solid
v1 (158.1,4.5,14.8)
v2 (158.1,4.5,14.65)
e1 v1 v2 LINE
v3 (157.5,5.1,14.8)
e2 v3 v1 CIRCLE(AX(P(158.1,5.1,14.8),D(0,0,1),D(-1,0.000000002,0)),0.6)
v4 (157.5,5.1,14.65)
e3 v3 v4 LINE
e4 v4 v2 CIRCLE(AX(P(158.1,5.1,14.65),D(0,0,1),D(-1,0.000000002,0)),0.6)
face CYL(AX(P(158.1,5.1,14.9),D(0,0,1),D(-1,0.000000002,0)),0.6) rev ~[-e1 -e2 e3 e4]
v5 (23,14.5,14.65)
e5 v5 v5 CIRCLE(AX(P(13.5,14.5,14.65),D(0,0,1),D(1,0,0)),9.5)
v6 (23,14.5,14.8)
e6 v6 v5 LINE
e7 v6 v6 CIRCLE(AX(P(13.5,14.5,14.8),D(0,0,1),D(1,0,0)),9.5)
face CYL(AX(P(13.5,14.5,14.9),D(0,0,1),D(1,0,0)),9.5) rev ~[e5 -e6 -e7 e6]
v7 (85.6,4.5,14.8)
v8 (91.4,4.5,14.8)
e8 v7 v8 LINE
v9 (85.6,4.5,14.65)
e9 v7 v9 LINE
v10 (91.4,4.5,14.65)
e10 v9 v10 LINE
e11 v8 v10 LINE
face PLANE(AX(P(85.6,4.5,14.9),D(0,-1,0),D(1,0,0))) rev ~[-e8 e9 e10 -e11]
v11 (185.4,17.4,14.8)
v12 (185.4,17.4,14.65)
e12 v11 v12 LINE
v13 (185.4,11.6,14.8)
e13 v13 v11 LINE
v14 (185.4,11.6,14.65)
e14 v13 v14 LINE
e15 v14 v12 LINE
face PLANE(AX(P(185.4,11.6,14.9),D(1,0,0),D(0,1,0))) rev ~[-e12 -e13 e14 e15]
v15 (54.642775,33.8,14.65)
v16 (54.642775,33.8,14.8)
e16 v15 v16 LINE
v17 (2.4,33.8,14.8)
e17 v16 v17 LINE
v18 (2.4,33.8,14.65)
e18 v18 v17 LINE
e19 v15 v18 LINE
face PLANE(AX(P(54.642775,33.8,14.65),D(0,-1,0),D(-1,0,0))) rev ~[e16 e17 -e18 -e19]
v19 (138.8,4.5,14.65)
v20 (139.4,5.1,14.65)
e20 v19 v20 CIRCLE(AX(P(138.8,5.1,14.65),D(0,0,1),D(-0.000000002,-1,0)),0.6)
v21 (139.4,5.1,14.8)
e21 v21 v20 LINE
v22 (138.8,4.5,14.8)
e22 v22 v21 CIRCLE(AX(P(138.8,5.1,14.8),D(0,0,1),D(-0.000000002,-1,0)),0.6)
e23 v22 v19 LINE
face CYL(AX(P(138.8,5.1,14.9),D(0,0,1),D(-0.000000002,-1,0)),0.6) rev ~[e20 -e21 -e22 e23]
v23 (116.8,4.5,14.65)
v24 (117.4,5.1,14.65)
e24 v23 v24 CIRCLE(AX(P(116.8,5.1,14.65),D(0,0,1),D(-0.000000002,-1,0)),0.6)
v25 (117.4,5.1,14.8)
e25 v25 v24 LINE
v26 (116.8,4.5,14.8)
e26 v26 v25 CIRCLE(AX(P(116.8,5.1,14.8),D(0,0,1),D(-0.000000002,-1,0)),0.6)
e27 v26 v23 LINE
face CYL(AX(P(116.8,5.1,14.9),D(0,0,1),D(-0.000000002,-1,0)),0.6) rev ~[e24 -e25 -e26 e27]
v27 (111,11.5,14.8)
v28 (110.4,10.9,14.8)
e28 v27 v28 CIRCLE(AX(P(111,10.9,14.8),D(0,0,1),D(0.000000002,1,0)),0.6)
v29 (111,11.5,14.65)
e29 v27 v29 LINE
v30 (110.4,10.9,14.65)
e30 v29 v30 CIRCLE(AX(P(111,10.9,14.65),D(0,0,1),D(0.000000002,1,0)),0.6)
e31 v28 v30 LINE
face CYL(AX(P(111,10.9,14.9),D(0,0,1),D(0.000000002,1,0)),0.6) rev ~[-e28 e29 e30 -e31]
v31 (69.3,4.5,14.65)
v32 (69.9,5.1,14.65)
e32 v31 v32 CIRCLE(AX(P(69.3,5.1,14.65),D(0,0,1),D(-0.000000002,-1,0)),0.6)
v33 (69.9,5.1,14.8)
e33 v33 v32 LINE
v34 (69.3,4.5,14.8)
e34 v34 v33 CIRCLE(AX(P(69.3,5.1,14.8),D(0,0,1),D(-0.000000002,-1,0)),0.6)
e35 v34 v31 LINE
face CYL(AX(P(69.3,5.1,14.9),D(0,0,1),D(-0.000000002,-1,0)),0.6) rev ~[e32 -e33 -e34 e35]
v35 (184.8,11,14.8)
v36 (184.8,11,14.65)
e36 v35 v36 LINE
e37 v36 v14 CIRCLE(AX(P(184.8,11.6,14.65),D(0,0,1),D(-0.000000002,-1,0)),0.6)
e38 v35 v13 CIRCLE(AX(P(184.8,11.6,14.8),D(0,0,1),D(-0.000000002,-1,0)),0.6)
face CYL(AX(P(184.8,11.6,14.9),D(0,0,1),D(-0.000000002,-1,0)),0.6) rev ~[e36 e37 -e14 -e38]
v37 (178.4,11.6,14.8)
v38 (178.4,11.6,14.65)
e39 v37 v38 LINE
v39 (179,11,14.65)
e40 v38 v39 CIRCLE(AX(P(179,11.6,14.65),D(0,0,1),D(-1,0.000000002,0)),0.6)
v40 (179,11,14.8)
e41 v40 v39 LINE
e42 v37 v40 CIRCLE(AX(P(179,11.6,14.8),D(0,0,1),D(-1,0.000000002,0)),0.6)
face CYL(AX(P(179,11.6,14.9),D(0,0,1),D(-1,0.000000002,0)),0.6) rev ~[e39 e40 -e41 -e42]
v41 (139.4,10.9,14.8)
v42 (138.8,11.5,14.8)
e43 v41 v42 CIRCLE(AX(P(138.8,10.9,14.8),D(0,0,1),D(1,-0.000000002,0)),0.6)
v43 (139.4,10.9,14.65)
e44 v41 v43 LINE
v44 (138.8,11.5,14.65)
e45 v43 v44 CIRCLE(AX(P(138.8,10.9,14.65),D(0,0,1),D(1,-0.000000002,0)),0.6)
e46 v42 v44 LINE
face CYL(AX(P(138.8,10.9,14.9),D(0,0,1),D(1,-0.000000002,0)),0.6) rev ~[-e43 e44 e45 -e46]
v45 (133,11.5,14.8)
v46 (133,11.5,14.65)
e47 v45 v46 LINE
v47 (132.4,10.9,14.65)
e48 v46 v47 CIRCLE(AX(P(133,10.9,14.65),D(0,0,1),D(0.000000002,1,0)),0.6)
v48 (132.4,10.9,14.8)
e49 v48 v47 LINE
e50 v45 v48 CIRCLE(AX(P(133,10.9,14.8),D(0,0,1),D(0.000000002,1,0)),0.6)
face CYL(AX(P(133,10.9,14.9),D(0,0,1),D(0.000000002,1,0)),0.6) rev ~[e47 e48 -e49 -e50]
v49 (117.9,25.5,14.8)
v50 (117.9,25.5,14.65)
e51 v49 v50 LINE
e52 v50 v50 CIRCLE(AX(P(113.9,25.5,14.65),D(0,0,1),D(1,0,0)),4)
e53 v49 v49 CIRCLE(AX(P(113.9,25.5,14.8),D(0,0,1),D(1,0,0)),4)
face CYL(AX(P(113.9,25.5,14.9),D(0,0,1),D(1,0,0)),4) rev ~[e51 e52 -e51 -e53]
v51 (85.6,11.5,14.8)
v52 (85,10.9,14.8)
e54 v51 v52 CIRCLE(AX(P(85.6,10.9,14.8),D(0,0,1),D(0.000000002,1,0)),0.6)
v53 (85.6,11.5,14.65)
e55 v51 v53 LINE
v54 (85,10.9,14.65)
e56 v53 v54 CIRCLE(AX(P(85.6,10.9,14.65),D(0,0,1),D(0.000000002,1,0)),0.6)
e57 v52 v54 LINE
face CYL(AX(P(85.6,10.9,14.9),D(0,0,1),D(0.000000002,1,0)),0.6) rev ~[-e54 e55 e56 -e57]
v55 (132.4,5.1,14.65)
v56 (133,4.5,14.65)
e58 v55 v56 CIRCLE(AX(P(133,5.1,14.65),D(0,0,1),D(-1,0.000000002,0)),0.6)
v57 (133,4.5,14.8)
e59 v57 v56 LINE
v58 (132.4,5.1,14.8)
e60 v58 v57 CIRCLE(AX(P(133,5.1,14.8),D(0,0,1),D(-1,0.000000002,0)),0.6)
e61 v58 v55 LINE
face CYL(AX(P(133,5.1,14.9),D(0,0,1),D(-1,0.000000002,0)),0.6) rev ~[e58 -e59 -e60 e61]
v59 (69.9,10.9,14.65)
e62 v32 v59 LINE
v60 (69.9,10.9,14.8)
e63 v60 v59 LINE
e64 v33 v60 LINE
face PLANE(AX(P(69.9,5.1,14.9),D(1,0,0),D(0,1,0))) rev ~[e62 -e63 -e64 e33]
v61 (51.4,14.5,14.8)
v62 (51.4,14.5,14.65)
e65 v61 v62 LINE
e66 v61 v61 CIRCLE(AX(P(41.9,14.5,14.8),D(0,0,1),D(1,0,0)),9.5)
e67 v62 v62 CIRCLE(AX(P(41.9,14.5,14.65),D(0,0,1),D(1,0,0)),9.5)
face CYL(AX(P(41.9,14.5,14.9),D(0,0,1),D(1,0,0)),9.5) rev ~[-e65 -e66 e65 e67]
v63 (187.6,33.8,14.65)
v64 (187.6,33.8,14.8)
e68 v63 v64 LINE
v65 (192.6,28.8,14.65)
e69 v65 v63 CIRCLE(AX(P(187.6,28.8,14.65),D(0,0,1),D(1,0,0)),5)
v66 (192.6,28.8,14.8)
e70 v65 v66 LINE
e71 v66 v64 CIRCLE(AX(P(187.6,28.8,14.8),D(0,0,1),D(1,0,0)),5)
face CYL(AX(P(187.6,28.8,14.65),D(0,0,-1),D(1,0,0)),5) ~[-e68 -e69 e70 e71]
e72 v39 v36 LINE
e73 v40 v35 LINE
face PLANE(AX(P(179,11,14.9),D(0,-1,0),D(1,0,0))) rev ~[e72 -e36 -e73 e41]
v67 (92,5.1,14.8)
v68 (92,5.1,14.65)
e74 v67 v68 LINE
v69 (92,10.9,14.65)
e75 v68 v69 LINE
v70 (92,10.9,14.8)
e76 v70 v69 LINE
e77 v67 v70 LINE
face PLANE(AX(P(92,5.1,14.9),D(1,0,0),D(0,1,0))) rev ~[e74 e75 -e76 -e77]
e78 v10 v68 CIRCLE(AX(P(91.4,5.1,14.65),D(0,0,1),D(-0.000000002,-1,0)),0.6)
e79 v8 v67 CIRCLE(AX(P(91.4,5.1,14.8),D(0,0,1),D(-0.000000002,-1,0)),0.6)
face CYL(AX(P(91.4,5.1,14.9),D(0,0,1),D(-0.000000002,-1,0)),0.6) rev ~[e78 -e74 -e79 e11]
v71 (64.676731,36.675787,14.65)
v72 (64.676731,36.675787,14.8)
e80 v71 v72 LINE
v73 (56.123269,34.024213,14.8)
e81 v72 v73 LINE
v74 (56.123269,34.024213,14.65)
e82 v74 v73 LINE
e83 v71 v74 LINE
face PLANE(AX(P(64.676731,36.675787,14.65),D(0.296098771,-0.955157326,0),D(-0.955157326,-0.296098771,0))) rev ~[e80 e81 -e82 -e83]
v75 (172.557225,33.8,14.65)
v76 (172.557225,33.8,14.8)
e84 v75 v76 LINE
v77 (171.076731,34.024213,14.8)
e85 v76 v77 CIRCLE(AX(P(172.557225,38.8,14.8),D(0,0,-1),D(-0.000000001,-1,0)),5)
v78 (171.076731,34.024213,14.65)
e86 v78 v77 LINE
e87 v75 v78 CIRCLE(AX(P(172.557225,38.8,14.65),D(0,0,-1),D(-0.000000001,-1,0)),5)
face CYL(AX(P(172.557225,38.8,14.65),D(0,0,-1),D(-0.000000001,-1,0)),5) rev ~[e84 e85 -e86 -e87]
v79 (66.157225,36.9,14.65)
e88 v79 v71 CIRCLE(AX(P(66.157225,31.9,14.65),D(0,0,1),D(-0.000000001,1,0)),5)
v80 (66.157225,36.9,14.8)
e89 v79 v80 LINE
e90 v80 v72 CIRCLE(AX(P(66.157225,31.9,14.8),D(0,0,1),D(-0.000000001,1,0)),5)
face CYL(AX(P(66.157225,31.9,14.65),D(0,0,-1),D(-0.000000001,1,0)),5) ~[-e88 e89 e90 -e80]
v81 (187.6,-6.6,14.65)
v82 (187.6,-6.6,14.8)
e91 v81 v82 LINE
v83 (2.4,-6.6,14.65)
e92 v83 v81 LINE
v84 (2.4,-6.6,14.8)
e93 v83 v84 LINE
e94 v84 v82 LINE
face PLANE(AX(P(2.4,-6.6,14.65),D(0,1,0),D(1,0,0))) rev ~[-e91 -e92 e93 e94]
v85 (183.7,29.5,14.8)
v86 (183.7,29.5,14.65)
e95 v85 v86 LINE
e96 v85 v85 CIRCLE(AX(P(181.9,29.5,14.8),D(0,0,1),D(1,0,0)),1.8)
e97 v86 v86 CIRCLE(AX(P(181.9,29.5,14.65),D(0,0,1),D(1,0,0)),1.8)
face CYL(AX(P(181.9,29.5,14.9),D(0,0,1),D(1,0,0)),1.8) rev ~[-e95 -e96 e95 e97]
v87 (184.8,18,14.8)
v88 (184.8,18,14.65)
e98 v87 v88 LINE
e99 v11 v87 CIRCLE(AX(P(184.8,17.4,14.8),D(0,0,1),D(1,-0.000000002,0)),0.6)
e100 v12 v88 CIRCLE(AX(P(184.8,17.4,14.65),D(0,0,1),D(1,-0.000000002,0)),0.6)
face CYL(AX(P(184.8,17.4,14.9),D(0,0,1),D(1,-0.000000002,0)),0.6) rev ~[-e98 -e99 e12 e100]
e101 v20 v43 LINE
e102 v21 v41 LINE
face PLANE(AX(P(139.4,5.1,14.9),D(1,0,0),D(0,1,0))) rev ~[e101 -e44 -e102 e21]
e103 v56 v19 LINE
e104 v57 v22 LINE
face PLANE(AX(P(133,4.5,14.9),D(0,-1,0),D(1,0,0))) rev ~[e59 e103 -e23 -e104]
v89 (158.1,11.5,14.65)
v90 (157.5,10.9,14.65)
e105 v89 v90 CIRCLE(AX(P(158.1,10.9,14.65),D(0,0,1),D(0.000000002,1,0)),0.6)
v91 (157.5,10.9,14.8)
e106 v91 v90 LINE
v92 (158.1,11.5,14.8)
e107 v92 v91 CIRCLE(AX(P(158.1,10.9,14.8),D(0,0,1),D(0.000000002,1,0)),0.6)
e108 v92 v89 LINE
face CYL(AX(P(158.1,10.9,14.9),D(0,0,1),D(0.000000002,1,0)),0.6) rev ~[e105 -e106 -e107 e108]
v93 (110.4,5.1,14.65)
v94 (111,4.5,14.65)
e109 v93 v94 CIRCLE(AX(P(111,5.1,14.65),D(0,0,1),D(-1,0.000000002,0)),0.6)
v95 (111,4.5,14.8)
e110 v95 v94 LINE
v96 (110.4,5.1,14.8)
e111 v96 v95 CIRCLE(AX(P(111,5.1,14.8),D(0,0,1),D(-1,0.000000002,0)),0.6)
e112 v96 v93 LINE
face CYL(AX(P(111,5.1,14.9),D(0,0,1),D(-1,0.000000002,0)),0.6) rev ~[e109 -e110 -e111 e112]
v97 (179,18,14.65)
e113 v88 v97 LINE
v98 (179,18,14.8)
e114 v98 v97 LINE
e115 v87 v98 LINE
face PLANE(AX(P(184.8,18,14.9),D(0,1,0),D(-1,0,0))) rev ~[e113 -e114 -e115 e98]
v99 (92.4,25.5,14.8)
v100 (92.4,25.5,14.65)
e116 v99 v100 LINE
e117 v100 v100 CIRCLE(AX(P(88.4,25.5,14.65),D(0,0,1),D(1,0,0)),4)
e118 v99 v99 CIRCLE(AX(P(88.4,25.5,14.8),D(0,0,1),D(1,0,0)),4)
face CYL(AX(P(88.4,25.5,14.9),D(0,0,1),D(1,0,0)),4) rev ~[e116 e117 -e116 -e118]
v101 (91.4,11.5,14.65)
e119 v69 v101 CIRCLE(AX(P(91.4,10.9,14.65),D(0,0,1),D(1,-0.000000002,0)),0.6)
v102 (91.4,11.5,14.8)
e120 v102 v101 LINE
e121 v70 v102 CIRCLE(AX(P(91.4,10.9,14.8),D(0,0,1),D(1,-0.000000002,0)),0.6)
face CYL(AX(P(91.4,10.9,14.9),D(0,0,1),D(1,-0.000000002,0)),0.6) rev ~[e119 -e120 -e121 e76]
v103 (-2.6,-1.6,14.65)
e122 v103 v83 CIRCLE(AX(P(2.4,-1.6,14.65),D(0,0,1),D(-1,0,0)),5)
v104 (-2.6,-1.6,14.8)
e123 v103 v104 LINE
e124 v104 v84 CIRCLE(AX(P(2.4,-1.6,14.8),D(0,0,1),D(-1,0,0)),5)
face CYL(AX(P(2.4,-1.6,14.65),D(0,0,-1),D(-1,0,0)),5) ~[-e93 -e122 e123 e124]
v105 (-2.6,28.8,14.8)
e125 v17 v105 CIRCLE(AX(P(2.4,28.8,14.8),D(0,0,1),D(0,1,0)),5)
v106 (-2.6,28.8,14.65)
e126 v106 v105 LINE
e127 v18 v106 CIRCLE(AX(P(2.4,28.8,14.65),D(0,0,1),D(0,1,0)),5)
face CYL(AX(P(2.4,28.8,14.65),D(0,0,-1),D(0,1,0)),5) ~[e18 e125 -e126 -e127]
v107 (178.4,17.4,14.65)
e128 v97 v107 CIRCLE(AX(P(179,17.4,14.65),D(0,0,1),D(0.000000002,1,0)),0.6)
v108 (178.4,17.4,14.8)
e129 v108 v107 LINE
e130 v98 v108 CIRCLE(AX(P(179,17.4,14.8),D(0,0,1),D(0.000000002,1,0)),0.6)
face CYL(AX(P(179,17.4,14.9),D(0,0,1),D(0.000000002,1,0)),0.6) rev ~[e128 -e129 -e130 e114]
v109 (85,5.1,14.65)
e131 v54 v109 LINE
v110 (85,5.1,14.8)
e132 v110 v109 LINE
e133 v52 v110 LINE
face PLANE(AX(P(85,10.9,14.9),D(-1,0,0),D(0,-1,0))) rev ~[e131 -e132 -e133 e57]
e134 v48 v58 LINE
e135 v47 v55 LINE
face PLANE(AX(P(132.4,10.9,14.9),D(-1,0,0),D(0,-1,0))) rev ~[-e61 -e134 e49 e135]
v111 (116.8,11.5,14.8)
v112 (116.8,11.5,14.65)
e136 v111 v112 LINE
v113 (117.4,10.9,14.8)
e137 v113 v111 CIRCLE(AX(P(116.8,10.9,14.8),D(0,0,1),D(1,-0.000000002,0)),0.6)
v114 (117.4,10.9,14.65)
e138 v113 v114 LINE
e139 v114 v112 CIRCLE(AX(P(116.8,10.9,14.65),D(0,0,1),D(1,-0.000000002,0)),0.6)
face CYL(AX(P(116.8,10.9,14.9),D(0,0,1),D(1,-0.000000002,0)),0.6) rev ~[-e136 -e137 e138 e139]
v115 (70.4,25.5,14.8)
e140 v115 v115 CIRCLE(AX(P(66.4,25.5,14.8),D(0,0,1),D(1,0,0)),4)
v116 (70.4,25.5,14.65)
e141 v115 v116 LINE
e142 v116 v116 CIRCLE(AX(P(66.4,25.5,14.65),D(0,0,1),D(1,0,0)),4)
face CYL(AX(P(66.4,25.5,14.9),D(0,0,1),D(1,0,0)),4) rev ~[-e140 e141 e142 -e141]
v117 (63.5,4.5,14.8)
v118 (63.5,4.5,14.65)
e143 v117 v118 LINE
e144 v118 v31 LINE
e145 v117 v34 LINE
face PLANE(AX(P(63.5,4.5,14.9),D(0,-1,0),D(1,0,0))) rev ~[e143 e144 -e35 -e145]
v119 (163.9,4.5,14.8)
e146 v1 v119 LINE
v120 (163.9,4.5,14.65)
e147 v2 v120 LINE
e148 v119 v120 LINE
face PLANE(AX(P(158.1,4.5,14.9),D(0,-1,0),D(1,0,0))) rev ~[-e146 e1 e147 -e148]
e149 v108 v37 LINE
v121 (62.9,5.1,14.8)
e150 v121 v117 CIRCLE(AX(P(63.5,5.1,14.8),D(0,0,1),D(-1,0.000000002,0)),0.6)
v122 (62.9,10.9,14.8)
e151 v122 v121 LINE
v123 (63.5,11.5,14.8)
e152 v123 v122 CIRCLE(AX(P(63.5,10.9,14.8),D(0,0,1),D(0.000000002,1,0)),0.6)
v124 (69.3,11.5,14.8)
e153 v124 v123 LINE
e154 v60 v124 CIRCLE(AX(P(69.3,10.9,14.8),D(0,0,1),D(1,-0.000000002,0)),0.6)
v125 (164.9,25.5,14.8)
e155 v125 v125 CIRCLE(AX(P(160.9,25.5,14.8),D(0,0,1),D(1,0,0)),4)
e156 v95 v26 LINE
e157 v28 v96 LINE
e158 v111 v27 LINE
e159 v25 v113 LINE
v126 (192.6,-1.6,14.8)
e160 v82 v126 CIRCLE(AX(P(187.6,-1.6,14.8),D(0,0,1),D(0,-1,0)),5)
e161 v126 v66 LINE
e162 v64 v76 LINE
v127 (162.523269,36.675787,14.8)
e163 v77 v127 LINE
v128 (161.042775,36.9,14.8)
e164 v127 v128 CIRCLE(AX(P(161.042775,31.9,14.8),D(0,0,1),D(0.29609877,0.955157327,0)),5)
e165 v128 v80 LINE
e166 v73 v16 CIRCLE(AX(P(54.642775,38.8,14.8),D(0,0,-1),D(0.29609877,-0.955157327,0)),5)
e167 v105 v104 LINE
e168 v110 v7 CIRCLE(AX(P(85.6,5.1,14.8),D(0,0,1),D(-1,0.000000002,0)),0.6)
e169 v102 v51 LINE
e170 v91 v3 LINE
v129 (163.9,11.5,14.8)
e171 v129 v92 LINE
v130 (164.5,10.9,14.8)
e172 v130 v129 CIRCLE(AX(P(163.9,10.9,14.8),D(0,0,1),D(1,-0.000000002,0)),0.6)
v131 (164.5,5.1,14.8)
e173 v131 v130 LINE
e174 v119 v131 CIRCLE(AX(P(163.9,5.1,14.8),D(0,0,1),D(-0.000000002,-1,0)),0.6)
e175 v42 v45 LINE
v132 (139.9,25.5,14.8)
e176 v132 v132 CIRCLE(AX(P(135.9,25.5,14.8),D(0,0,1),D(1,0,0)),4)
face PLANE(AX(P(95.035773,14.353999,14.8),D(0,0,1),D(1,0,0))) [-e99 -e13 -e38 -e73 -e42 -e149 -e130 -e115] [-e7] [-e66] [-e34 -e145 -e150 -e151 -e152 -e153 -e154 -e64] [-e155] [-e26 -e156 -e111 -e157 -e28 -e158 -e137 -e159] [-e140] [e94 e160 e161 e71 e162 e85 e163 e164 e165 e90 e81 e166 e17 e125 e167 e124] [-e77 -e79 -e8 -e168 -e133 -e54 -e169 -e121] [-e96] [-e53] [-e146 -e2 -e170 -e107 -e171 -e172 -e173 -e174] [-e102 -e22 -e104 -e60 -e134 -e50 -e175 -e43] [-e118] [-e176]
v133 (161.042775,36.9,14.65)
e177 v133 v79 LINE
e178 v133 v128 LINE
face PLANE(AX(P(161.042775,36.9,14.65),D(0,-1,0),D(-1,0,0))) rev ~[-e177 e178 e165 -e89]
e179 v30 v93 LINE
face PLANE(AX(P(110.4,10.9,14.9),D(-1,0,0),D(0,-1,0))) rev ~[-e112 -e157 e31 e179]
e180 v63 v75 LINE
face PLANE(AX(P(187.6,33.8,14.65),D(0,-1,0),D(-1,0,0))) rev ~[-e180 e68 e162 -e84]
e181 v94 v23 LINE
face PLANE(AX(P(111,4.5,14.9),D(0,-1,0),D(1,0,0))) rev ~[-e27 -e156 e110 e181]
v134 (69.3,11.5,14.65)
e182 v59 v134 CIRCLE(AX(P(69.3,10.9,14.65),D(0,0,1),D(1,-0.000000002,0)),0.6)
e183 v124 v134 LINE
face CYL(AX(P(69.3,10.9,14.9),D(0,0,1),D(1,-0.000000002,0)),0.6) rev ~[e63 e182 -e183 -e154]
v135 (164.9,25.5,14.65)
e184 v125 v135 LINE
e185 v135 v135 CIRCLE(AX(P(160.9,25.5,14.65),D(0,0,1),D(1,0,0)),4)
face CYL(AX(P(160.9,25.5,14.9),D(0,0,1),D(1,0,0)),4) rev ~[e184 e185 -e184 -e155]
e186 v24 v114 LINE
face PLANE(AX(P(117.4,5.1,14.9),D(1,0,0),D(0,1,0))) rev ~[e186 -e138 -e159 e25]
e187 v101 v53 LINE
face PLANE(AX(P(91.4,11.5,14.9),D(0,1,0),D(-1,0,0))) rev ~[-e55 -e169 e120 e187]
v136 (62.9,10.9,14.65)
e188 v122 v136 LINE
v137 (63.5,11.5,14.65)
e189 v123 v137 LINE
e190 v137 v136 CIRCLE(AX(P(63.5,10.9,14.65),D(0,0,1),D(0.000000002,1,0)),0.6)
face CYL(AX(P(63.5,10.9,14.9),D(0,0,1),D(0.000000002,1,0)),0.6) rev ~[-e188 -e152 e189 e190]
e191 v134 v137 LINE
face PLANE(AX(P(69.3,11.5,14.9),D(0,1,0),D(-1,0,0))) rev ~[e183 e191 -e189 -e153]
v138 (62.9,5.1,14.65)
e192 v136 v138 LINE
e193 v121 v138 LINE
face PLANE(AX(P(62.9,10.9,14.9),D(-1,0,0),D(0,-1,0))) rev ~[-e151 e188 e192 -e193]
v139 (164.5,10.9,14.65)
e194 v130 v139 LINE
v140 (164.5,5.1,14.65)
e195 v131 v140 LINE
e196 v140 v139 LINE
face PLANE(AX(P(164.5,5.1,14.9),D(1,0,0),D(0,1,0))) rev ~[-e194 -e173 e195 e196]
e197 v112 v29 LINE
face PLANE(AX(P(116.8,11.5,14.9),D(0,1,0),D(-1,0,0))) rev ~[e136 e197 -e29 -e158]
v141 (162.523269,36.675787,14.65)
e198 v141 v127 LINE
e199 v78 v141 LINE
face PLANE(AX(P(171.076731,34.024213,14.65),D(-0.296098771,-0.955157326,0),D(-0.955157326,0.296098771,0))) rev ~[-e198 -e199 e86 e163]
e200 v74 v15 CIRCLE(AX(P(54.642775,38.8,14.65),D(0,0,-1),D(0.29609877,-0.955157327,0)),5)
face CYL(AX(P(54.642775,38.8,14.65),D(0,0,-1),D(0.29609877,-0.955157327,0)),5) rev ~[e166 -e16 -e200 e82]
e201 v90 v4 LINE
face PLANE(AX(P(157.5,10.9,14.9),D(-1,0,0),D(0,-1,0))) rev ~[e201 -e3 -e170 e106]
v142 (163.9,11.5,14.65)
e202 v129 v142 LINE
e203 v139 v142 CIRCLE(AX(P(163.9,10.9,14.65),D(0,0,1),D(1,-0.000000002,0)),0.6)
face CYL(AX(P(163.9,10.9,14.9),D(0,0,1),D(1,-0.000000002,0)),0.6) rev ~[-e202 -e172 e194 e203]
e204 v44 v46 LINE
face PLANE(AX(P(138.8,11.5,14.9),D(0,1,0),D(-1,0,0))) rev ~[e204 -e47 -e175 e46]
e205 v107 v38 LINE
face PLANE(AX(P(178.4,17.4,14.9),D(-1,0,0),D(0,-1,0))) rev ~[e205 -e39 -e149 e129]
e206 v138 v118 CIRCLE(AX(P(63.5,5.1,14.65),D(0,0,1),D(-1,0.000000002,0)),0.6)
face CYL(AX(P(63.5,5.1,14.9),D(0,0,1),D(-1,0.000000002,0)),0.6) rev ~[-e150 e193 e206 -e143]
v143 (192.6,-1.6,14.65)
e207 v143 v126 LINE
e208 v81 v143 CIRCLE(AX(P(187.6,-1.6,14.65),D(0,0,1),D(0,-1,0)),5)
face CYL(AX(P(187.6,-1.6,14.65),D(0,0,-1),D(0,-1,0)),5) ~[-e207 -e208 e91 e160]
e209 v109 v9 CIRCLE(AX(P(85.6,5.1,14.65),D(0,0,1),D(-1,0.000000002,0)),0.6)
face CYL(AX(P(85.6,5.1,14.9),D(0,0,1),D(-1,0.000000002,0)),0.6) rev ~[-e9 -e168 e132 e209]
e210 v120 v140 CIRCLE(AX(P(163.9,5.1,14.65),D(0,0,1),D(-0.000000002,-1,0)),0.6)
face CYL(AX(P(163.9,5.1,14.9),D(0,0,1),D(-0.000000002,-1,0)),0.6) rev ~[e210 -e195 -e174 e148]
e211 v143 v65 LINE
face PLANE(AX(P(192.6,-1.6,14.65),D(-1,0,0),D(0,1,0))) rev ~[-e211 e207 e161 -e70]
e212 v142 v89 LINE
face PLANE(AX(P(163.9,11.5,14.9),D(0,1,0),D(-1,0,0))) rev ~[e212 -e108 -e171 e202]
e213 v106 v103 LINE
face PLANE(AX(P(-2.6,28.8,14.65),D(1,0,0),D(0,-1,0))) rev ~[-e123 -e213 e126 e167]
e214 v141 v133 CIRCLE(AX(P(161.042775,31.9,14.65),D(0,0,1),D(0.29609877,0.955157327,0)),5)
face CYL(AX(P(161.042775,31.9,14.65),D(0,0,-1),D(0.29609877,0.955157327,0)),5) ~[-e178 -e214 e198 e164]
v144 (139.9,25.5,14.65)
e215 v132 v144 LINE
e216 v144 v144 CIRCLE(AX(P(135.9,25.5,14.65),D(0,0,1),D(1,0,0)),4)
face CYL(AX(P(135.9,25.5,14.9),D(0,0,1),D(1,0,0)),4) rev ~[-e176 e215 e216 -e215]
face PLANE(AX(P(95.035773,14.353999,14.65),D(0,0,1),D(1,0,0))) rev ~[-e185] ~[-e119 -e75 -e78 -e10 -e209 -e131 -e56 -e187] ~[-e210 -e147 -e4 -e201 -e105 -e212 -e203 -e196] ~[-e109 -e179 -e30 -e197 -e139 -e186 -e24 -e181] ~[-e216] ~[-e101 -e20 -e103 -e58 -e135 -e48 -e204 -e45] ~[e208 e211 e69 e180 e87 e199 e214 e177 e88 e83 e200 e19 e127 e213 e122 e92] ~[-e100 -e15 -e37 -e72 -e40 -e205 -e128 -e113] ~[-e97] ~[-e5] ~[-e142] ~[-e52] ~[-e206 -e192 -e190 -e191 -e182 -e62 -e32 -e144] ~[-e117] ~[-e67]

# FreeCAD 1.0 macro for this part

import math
import FreeCAD as App
import Part
import Sketcher

V = App.Vector

doc = App.newDocument("Part")
body = doc.addObject("PartDesign::Body", "Body")

# Sketch on XY plane
sketch1 = body.newObject("Sketcher::SketchObject", "Sketch")
sketch1.AttachmentSupport = (doc.getObject("XY_Plane"), [""])
sketch1.MapMode = "FlatFace"
sketch1.AttachmentOffset = App.Placement(V(0, 0, 14.65), App.Rotation())
sketch1.addGeometry(Part.LineSegment(V(2.4, -6.6, 0), V(187.6, -6.6, 0)), False)
sketch1.addGeometry(Part.ArcOfCircle(Part.Circle(V(187.6, -1.6, 0), V(0, 0, 1), 5), math.radians(-90), math.radians(0)), False)
sketch1.addGeometry(Part.LineSegment(V(192.6, -1.6, 0), V(192.6, 28.8, 0)), False)
sketch1.addGeometry(Part.ArcOfCircle(Part.Circle(V(187.6, 28.8, 0), V(0, 0, 1), 5), math.radians(0), math.radians(90)), False)
sketch1.addGeometry(Part.LineSegment(V(187.6, 33.8, 0), V(172.557225, 33.8, 0)), False)
sketch1.addGeometry(Part.ArcOfCircle(Part.Circle(V(172.557225, 38.8, 0), V(0, 0, 1), 5), math.radians(-107.223436), math.radians(-90)), False)
sketch1.addGeometry(Part.LineSegment(V(171.076731, 34.024213, 0), V(162.523269, 36.675787, 0)), False)
sketch1.addGeometry(Part.ArcOfCircle(Part.Circle(V(161.042775, 31.9, 0), V(0, 0, 1), 5), math.radians(72.776564), math.radians(90)), False)
sketch1.addGeometry(Part.LineSegment(V(161.042775, 36.9, 0), V(66.157225, 36.9, 0)), False)
sketch1.addGeometry(Part.ArcOfCircle(Part.Circle(V(66.157225, 31.9, 0), V(0, 0, 1), 5), math.radians(90), math.radians(107.223436)), False)
sketch1.addGeometry(Part.LineSegment(V(64.676731, 36.675787, 0), V(56.123269, 34.024213, 0)), False)
sketch1.addGeometry(Part.ArcOfCircle(Part.Circle(V(54.642775, 38.8, 0), V(0, 0, 1), 5), math.radians(-90), math.radians(-72.776564)), False)
sketch1.addGeometry(Part.LineSegment(V(54.642775, 33.8, 0), V(2.4, 33.8, 0)), False)
sketch1.addGeometry(Part.ArcOfCircle(Part.Circle(V(2.4, 28.8, 0), V(0, 0, 1), 5), math.radians(90), math.radians(180)), False)
sketch1.addGeometry(Part.LineSegment(V(-2.6, 28.8, 0), V(-2.6, -1.6, 0)), False)
sketch1.addGeometry(Part.ArcOfCircle(Part.Circle(V(2.4, -1.6, 0), V(0, 0, 1), 5), math.radians(180), math.radians(270)), False)
sketch1.addConstraint(Sketcher.Constraint("Tangent", 0, 2, 1, 1))
sketch1.addConstraint(Sketcher.Constraint("Tangent", 1, 2, 2, 1))
sketch1.addConstraint(Sketcher.Constraint("Tangent", 2, 2, 3, 1))
sketch1.addConstraint(Sketcher.Constraint("Tangent", 3, 2, 4, 1))
sketch1.addConstraint(Sketcher.Constraint("Tangent", 4, 2, 5, 2))
sketch1.addConstraint(Sketcher.Constraint("Tangent", 5, 1, 6, 1))
sketch1.addConstraint(Sketcher.Constraint("Tangent", 6, 2, 7, 1))
sketch1.addConstraint(Sketcher.Constraint("Tangent", 7, 2, 8, 1))
sketch1.addConstraint(Sketcher.Constraint("Tangent", 8, 2, 9, 1))
sketch1.addConstraint(Sketcher.Constraint("Tangent", 9, 2, 10, 1))
sketch1.addConstraint(Sketcher.Constraint("Tangent", 10, 2, 11, 2))
sketch1.addConstraint(Sketcher.Constraint("Tangent", 11, 1, 12, 1))
sketch1.addConstraint(Sketcher.Constraint("Tangent", 12, 2, 13, 1))
sketch1.addConstraint(Sketcher.Constraint("Tangent", 13, 2, 14, 1))
sketch1.addConstraint(Sketcher.Constraint("Tangent", 14, 2, 15, 1))
sketch1.addConstraint(Sketcher.Constraint("Tangent", 15, 2, 0, 1))
sketch1.addConstraint(Sketcher.Constraint("Horizontal", 0))
sketch1.addConstraint(Sketcher.Constraint("Vertical", 2))
sketch1.addConstraint(Sketcher.Constraint("Horizontal", 4))
sketch1.addConstraint(Sketcher.Constraint("Horizontal", 8))
sketch1.addConstraint(Sketcher.Constraint("Horizontal", 12))
sketch1.addConstraint(Sketcher.Constraint("Vertical", 14))
sketch1.addConstraint(Sketcher.Constraint("Equal", 1, 3))
sketch1.addConstraint(Sketcher.Constraint("Equal", 3, 5))
sketch1.addConstraint(Sketcher.Constraint("Equal", 5, 7))
sketch1.addConstraint(Sketcher.Constraint("Equal", 7, 9))
sketch1.addConstraint(Sketcher.Constraint("Equal", 9, 11))
sketch1.addConstraint(Sketcher.Constraint("Equal", 11, 13))
sketch1.addConstraint(Sketcher.Constraint("Equal", 13, 15))
sketch1.addConstraint(Sketcher.Constraint("Horizontal", 5, 3, 11, 3))
sketch1.addConstraint(Sketcher.Constraint("Horizontal", 6, 2, 9, 2))
sketch1.addConstraint(Sketcher.Constraint("Radius", 1, 5.0))
sketch1.addConstraint(Sketcher.Constraint("DistanceX", 0, 1, 0, 2, 185.2))
sketch1.addConstraint(Sketcher.Constraint("DistanceY", 2, 1, 2, 2, 30.4))
sketch1.addConstraint(Sketcher.Constraint("DistanceX", -1, 1, 1, 3, 187.6))
sketch1.addConstraint(Sketcher.Constraint("DistanceY", 1, 3, -1, 1, 1.6))
sketch1.addConstraint(Sketcher.Constraint("DistanceY", -1, 1, 7, 3, 31.9))
sketch1.addConstraint(Sketcher.Constraint("DistanceX", 9, 3, 5, 3, 106.4))
sketch1.addConstraint(Sketcher.Constraint("DistanceX", 8, 2, 8, 1, 94.88555))
sketch1.addConstraint(Sketcher.Constraint("DistanceX", 4, 2, 4, 1, 15.042775))
pad1 = body.newObject("PartDesign::Pad", "Pad")
pad1.Profile = sketch1
pad1.Length = 0.15

# Sketch on XY plane
sketch2 = body.newObject("Sketcher::SketchObject", "Sketch001")
sketch2.AttachmentSupport = (doc.getObject("XY_Plane"), [""])
sketch2.MapMode = "FlatFace"
sketch2.AttachmentOffset = App.Placement(V(0, 0, 14.9), App.Rotation())
sketch2.addGeometry(Part.Circle(V(13.5, 14.5, 0), V(0, 0, 1), 9.5), False)
sketch2.addConstraint(Sketcher.Constraint("Diameter", 0, 19.0))
sketch2.addConstraint(Sketcher.Constraint("DistanceX", -1, 1, 0, 3, 13.5))
sketch2.addConstraint(Sketcher.Constraint("DistanceY", -1, 1, 0, 3, 14.5))
pocket1 = body.newObject("PartDesign::Pocket", "Pocket")
pocket1.Profile = sketch2
pocket1.Length = 0.35

# Sketch on XY plane
sketch3 = body.newObject("Sketcher::SketchObject", "Sketch002")
sketch3.AttachmentSupport = (doc.getObject("XY_Plane"), [""])
sketch3.MapMode = "FlatFace"
sketch3.AttachmentOffset = App.Placement(V(0, 0, 14.9), App.Rotation())
sketch3.addGeometry(Part.Circle(V(41.9, 14.5, 0), V(0, 0, 1), 9.5), False)
sketch3.addConstraint(Sketcher.Constraint("Diameter", 0, 19.0))
sketch3.addConstraint(Sketcher.Constraint("DistanceX", -1, 1, 0, 3, 41.9))
sketch3.addConstraint(Sketcher.Constraint("DistanceY", -1, 1, 0, 3, 14.5))
pocket2 = body.newObject("PartDesign::Pocket", "Pocket001")
pocket2.Profile = sketch3
pocket2.Length = 0.35

# Sketch on XY plane
sketch4 = body.newObject("Sketcher::SketchObject", "Sketch003")
sketch4.AttachmentSupport = (doc.getObject("XY_Plane"), [""])
sketch4.MapMode = "FlatFace"
sketch4.AttachmentOffset = App.Placement(V(0, 0, 14.9), App.Rotation())
sketch4.addGeometry(Part.Circle(V(181.9, 29.5, 0), V(0, 0, 1), 1.8), False)
sketch4.addConstraint(Sketcher.Constraint("Diameter", 0, 3.6))
sketch4.addConstraint(Sketcher.Constraint("DistanceX", -1, 1, 0, 3, 181.9))
sketch4.addConstraint(Sketcher.Constraint("DistanceY", -1, 1, 0, 3, 29.5))
pocket3 = body.newObject("PartDesign::Pocket", "Pocket002")
pocket3.Profile = sketch4
pocket3.Length = 0.35

# Sketch on XY plane
sketch5 = body.newObject("Sketcher::SketchObject", "Sketch004")
sketch5.AttachmentSupport = (doc.getObject("XY_Plane"), [""])
sketch5.MapMode = "FlatFace"
sketch5.AttachmentOffset = App.Placement(V(0, 0, 14.9), App.Rotation())
sketch5.addGeometry(Part.Circle(V(160.9, 25.5, 0), V(0, 0, 1), 4), False)
sketch5.addConstraint(Sketcher.Constraint("Diameter", 0, 8.0))
sketch5.addConstraint(Sketcher.Constraint("DistanceX", -1, 1, 0, 3, 160.9))
sketch5.addConstraint(Sketcher.Constraint("DistanceY", -1, 1, 0, 3, 25.5))
pocket4 = body.newObject("PartDesign::Pocket", "Pocket003")
pocket4.Profile = sketch5
pocket4.Length = 0.35

# Sketch on XY plane
sketch6 = body.newObject("Sketcher::SketchObject", "Sketch005")
sketch6.AttachmentSupport = (doc.getObject("XY_Plane"), [""])
sketch6.MapMode = "FlatFace"
sketch6.AttachmentOffset = App.Placement(V(0, 0, 14.9), App.Rotation())
sketch6.addGeometry(Part.LineSegment(V(133, 4.5, 0), V(138.8, 4.5, 0)), False)
sketch6.addGeometry(Part.ArcOfCircle(Part.Circle(V(138.8, 5.1, 0), V(0, 0, 1), 0.6), math.radians(-90), math.radians(0)), False)
sketch6.addGeometry(Part.LineSegment(V(139.4, 5.1, 0), V(139.4, 10.9, 0)), False)
sketch6.addGeometry(Part.ArcOfCircle(Part.Circle(V(138.8, 10.9, 0), V(0, 0, 1), 0.6), math.radians(0), math.radians(90)), False)
sketch6.addGeometry(Part.LineSegment(V(138.8, 11.5, 0), V(133, 11.5, 0)), False)
sketch6.addGeometry(Part.ArcOfCircle(Part.Circle(V(133, 10.9, 0), V(0, 0, 1), 0.6), math.radians(90), math.radians(180)), False)
sketch6.addGeometry(Part.LineSegment(V(132.4, 10.9, 0), V(132.4, 5.1, 0)), False)
sketch6.addGeometry(Part.ArcOfCircle(Part.Circle(V(133, 5.1, 0), V(0, 0, 1), 0.6), math.radians(180), math.radians(270)), False)
sketch6.addConstraint(Sketcher.Constraint("Tangent", 0, 2, 1, 1))
sketch6.addConstraint(Sketcher.Constraint("Tangent", 1, 2, 2, 1))
sketch6.addConstraint(Sketcher.Constraint("Tangent", 2, 2, 3, 1))
sketch6.addConstraint(Sketcher.Constraint("Tangent", 3, 2, 4, 1))
sketch6.addConstraint(Sketcher.Constraint("Tangent", 4, 2, 5, 1))
sketch6.addConstraint(Sketcher.Constraint("Tangent", 5, 2, 6, 1))
sketch6.addConstraint(Sketcher.Constraint("Tangent", 6, 2, 7, 1))
sketch6.addConstraint(Sketcher.Constraint("Tangent", 7, 2, 0, 1))
sketch6.addConstraint(Sketcher.Constraint("Horizontal", 0))
sketch6.addConstraint(Sketcher.Constraint("Vertical", 2))
sketch6.addConstraint(Sketcher.Constraint("Horizontal", 4))
sketch6.addConstraint(Sketcher.Constraint("Vertical", 6))
sketch6.addConstraint(Sketcher.Constraint("Equal", 1, 3))
sketch6.addConstraint(Sketcher.Constraint("Equal", 3, 5))
sketch6.addConstraint(Sketcher.Constraint("Equal", 5, 7))
sketch6.addConstraint(Sketcher.Constraint("Equal", 4, 2))
sketch6.addConstraint(Sketcher.Constraint("Radius", 1, 0.6))
sketch6.addConstraint(Sketcher.Constraint("DistanceX", 0, 1, 0, 2, 5.8))
sketch6.addConstraint(Sketcher.Constraint("DistanceX", -1, 1, 5, 3, 133.0))
sketch6.addConstraint(Sketcher.Constraint("DistanceY", -1, 1, 1, 3, 5.1))
pocket5 = body.newObject("PartDesign::Pocket", "Pocket004")
pocket5.Profile = sketch6
pocket5.Length = 0.35

# Sketch on XY plane
sketch7 = body.newObject("Sketcher::SketchObject", "Sketch006")
sketch7.AttachmentSupport = (doc.getObject("XY_Plane"), [""])
sketch7.MapMode = "FlatFace"
sketch7.AttachmentOffset = App.Placement(V(0, 0, 14.9), App.Rotation())
sketch7.addGeometry(Part.LineSegment(V(111, 4.5, 0), V(116.8, 4.5, 0)), False)
sketch7.addGeometry(Part.ArcOfCircle(Part.Circle(V(116.8, 5.1, 0), V(0, 0, 1), 0.6), math.radians(-90), math.radians(0)), False)
sketch7.addGeometry(Part.LineSegment(V(117.4, 5.1, 0), V(117.4, 10.9, 0)), False)
sketch7.addGeometry(Part.ArcOfCircle(Part.Circle(V(116.8, 10.9, 0), V(0, 0, 1), 0.6), math.radians(0), math.radians(90)), False)
sketch7.addGeometry(Part.LineSegment(V(116.8, 11.5, 0), V(111, 11.5, 0)), False)
sketch7.addGeometry(Part.ArcOfCircle(Part.Circle(V(111, 10.9, 0), V(0, 0, 1), 0.6), math.radians(90), math.radians(180)), False)
sketch7.addGeometry(Part.LineSegment(V(110.4, 10.9, 0), V(110.4, 5.1, 0)), False)
sketch7.addGeometry(Part.ArcOfCircle(Part.Circle(V(111, 5.1, 0), V(0, 0, 1), 0.6), math.radians(180), math.radians(270)), False)
sketch7.addConstraint(Sketcher.Constraint("Tangent", 0, 2, 1, 1))
sketch7.addConstraint(Sketcher.Constraint("Tangent", 1, 2, 2, 1))
sketch7.addConstraint(Sketcher.Constraint("Tangent", 2, 2, 3, 1))
sketch7.addConstraint(Sketcher.Constraint("Tangent", 3, 2, 4, 1))
sketch7.addConstraint(Sketcher.Constraint("Tangent", 4, 2, 5, 1))
sketch7.addConstraint(Sketcher.Constraint("Tangent", 5, 2, 6, 1))
sketch7.addConstraint(Sketcher.Constraint("Tangent", 6, 2, 7, 1))
sketch7.addConstraint(Sketcher.Constraint("Tangent", 7, 2, 0, 1))
sketch7.addConstraint(Sketcher.Constraint("Horizontal", 0))
sketch7.addConstraint(Sketcher.Constraint("Vertical", 2))
sketch7.addConstraint(Sketcher.Constraint("Horizontal", 4))
sketch7.addConstraint(Sketcher.Constraint("Vertical", 6))
sketch7.addConstraint(Sketcher.Constraint("Equal", 1, 3))
sketch7.addConstraint(Sketcher.Constraint("Equal", 3, 5))
sketch7.addConstraint(Sketcher.Constraint("Equal", 5, 7))
sketch7.addConstraint(Sketcher.Constraint("Equal", 4, 2))
sketch7.addConstraint(Sketcher.Constraint("Radius", 1, 0.6))
sketch7.addConstraint(Sketcher.Constraint("DistanceX", 0, 1, 0, 2, 5.8))
sketch7.addConstraint(Sketcher.Constraint("DistanceX", -1, 1, 5, 3, 111.0))
sketch7.addConstraint(Sketcher.Constraint("DistanceY", -1, 1, 1, 3, 5.1))
pocket6 = body.newObject("PartDesign::Pocket", "Pocket005")
pocket6.Profile = sketch7
pocket6.Length = 0.35

# Sketch on XY plane
sketch8 = body.newObject("Sketcher::SketchObject", "Sketch007")
sketch8.AttachmentSupport = (doc.getObject("XY_Plane"), [""])
sketch8.MapMode = "FlatFace"
sketch8.AttachmentOffset = App.Placement(V(0, 0, 14.9), App.Rotation())
sketch8.addGeometry(Part.LineSegment(V(85.6, 4.5, 0), V(91.4, 4.5, 0)), False)
sketch8.addGeometry(Part.ArcOfCircle(Part.Circle(V(91.4, 5.1, 0), V(0, 0, 1), 0.6), math.radians(-90), math.radians(0)), False)
sketch8.addGeometry(Part.LineSegment(V(92, 5.1, 0), V(92, 10.9, 0)), False)
sketch8.addGeometry(Part.ArcOfCircle(Part.Circle(V(91.4, 10.9, 0), V(0, 0, 1), 0.6), math.radians(0), math.radians(90)), False)
sketch8.addGeometry(Part.LineSegment(V(91.4, 11.5, 0), V(85.6, 11.5, 0)), False)
sketch8.addGeometry(Part.ArcOfCircle(Part.Circle(V(85.6, 10.9, 0), V(0, 0, 1), 0.6), math.radians(90), math.radians(180)), False)
sketch8.addGeometry(Part.LineSegment(V(85, 10.9, 0), V(85, 5.1, 0)), False)
sketch8.addGeometry(Part.ArcOfCircle(Part.Circle(V(85.6, 5.1, 0), V(0, 0, 1), 0.6), math.radians(180), math.radians(270)), False)
sketch8.addConstraint(Sketcher.Constraint("Tangent", 0, 2, 1, 1))
sketch8.addConstraint(Sketcher.Constraint("Tangent", 1, 2, 2, 1))
sketch8.addConstraint(Sketcher.Constraint("Tangent", 2, 2, 3, 1))
sketch8.addConstraint(Sketcher.Constraint("Tangent", 3, 2, 4, 1))
sketch8.addConstraint(Sketcher.Constraint("Tangent", 4, 2, 5, 1))
sketch8.addConstraint(Sketcher.Constraint("Tangent", 5, 2, 6, 1))
sketch8.addConstraint(Sketcher.Constraint("Tangent", 6, 2, 7, 1))
sketch8.addConstraint(Sketcher.Constraint("Tangent", 7, 2, 0, 1))
sketch8.addConstraint(Sketcher.Constraint("Horizontal", 0))
sketch8.addConstraint(Sketcher.Constraint("Vertical", 2))
sketch8.addConstraint(Sketcher.Constraint("Horizontal", 4))
sketch8.addConstraint(Sketcher.Constraint("Vertical", 6))
sketch8.addConstraint(Sketcher.Constraint("Equal", 1, 3))
sketch8.addConstraint(Sketcher.Constraint("Equal", 3, 5))
sketch8.addConstraint(Sketcher.Constraint("Equal", 5, 7))
sketch8.addConstraint(Sketcher.Constraint("Equal", 4, 2))
sketch8.addConstraint(Sketcher.Constraint("Radius", 1, 0.6))
sketch8.addConstraint(Sketcher.Constraint("DistanceX", 0, 1, 0, 2, 5.8))
sketch8.addConstraint(Sketcher.Constraint("DistanceX", -1, 1, 1, 2, 92.0))
sketch8.addConstraint(Sketcher.Constraint("DistanceY", -1, 1, 1, 3, 5.1))
pocket7 = body.newObject("PartDesign::Pocket", "Pocket006")
pocket7.Profile = sketch8
pocket7.Length = 0.35

# Sketch on XY plane
sketch9 = body.newObject("Sketcher::SketchObject", "Sketch008")
sketch9.AttachmentSupport = (doc.getObject("XY_Plane"), [""])
sketch9.MapMode = "FlatFace"
sketch9.AttachmentOffset = App.Placement(V(0, 0, 14.9), App.Rotation())
sketch9.addGeometry(Part.Circle(V(135.9, 25.5, 0), V(0, 0, 1), 4), False)
sketch9.addConstraint(Sketcher.Constraint("Diameter", 0, 8.0))
sketch9.addConstraint(Sketcher.Constraint("DistanceX", -1, 1, 0, 3, 135.9))
sketch9.addConstraint(Sketcher.Constraint("DistanceY", -1, 1, 0, 3, 25.5))
pocket8 = body.newObject("PartDesign::Pocket", "Pocket007")
pocket8.Profile = sketch9
pocket8.Length = 0.35

# Sketch on XY plane
sketch10 = body.newObject("Sketcher::SketchObject", "Sketch009")
sketch10.AttachmentSupport = (doc.getObject("XY_Plane"), [""])
sketch10.MapMode = "FlatFace"
sketch10.AttachmentOffset = App.Placement(V(0, 0, 14.9), App.Rotation())
sketch10.addGeometry(Part.Circle(V(113.9, 25.5, 0), V(0, 0, 1), 4), False)
sketch10.addConstraint(Sketcher.Constraint("Diameter", 0, 8.0))
sketch10.addConstraint(Sketcher.Constraint("DistanceX", -1, 1, 0, 3, 113.9))
sketch10.addConstraint(Sketcher.Constraint("DistanceY", -1, 1, 0, 3, 25.5))
pocket9 = body.newObject("PartDesign::Pocket", "Pocket008")
pocket9.Profile = sketch10
pocket9.Length = 0.35

# Sketch on XY plane
sketch11 = body.newObject("Sketcher::SketchObject", "Sketch010")
sketch11.AttachmentSupport = (doc.getObject("XY_Plane"), [""])
sketch11.MapMode = "FlatFace"
sketch11.AttachmentOffset = App.Placement(V(0, 0, 14.9), App.Rotation())
sketch11.addGeometry(Part.Circle(V(88.4, 25.5, 0), V(0, 0, 1), 4), False)
sketch11.addConstraint(Sketcher.Constraint("Diameter", 0, 8.0))
sketch11.addConstraint(Sketcher.Constraint("DistanceX", -1, 1, 0, 3, 88.4))
sketch11.addConstraint(Sketcher.Constraint("DistanceY", -1, 1, 0, 3, 25.5))
pocket10 = body.newObject("PartDesign::Pocket", "Pocket009")
pocket10.Profile = sketch11
pocket10.Length = 0.35

# Sketch on XY plane
sketch12 = body.newObject("Sketcher::SketchObject", "Sketch011")
sketch12.AttachmentSupport = (doc.getObject("XY_Plane"), [""])
sketch12.MapMode = "FlatFace"
sketch12.AttachmentOffset = App.Placement(V(0, 0, 14.9), App.Rotation())
sketch12.addGeometry(Part.Circle(V(66.4, 25.5, 0), V(0, 0, 1), 4), False)
sketch12.addConstraint(Sketcher.Constraint("Diameter", 0, 8.0))
sketch12.addConstraint(Sketcher.Constraint("DistanceX", -1, 1, 0, 3, 66.4))
sketch12.addConstraint(Sketcher.Constraint("DistanceY", -1, 1, 0, 3, 25.5))
pocket11 = body.newObject("PartDesign::Pocket", "Pocket010")
pocket11.Profile = sketch12
pocket11.Length = 0.35

# Sketch on XY plane
sketch13 = body.newObject("Sketcher::SketchObject", "Sketch012")
sketch13.AttachmentSupport = (doc.getObject("XY_Plane"), [""])
sketch13.MapMode = "FlatFace"
sketch13.AttachmentOffset = App.Placement(V(0, 0, 14.9), App.Rotation())
sketch13.addGeometry(Part.LineSegment(V(179, 11, 0), V(184.8, 11, 0)), False)
sketch13.addGeometry(Part.ArcOfCircle(Part.Circle(V(184.8, 11.6, 0), V(0, 0, 1), 0.6), math.radians(-90), math.radians(0)), False)
sketch13.addGeometry(Part.LineSegment(V(185.4, 11.6, 0), V(185.4, 17.4, 0)), False)
sketch13.addGeometry(Part.ArcOfCircle(Part.Circle(V(184.8, 17.4, 0), V(0, 0, 1), 0.6), math.radians(0), math.radians(90)), False)
sketch13.addGeometry(Part.LineSegment(V(184.8, 18, 0), V(179, 18, 0)), False)
sketch13.addGeometry(Part.ArcOfCircle(Part.Circle(V(179, 17.4, 0), V(0, 0, 1), 0.6), math.radians(90), math.radians(180)), False)
sketch13.addGeometry(Part.LineSegment(V(178.4, 17.4, 0), V(178.4, 11.6, 0)), False)
sketch13.addGeometry(Part.ArcOfCircle(Part.Circle(V(179, 11.6, 0), V(0, 0, 1), 0.6), math.radians(180), math.radians(270)), False)
sketch13.addConstraint(Sketcher.Constraint("Tangent", 0, 2, 1, 1))
sketch13.addConstraint(Sketcher.Constraint("Tangent", 1, 2, 2, 1))
sketch13.addConstraint(Sketcher.Constraint("Tangent", 2, 2, 3, 1))
sketch13.addConstraint(Sketcher.Constraint("Tangent", 3, 2, 4, 1))
sketch13.addConstraint(Sketcher.Constraint("Tangent", 4, 2, 5, 1))
sketch13.addConstraint(Sketcher.Constraint("Tangent", 5, 2, 6, 1))
sketch13.addConstraint(Sketcher.Constraint("Tangent", 6, 2, 7, 1))
sketch13.addConstraint(Sketcher.Constraint("Tangent", 7, 2, 0, 1))
sketch13.addConstraint(Sketcher.Constraint("Horizontal", 0))
sketch13.addConstraint(Sketcher.Constraint("Vertical", 2))
sketch13.addConstraint(Sketcher.Constraint("Horizontal", 4))
sketch13.addConstraint(Sketcher.Constraint("Vertical", 6))
sketch13.addConstraint(Sketcher.Constraint("Equal", 1, 3))
sketch13.addConstraint(Sketcher.Constraint("Equal", 3, 5))
sketch13.addConstraint(Sketcher.Constraint("Equal", 5, 7))
sketch13.addConstraint(Sketcher.Constraint("Equal", 4, 2))
sketch13.addConstraint(Sketcher.Constraint("Radius", 1, 0.6))
sketch13.addConstraint(Sketcher.Constraint("DistanceX", 0, 1, 0, 2, 5.8))
sketch13.addConstraint(Sketcher.Constraint("DistanceX", -1, 1, 5, 3, 179.0))
sketch13.addConstraint(Sketcher.Constraint("DistanceY", -1, 1, 0, 2, 11.0))
pocket12 = body.newObject("PartDesign::Pocket", "Pocket011")
pocket12.Profile = sketch13
pocket12.Length = 0.35

# Sketch on XY plane
sketch14 = body.newObject("Sketcher::SketchObject", "Sketch013")
sketch14.AttachmentSupport = (doc.getObject("XY_Plane"), [""])
sketch14.MapMode = "FlatFace"
sketch14.AttachmentOffset = App.Placement(V(0, 0, 14.9), App.Rotation())
sketch14.addGeometry(Part.LineSegment(V(158.1, 4.5, 0), V(163.9, 4.5, 0)), False)
sketch14.addGeometry(Part.ArcOfCircle(Part.Circle(V(163.9, 5.1, 0), V(0, 0, 1), 0.6), math.radians(-90), math.radians(0)), False)
sketch14.addGeometry(Part.LineSegment(V(164.5, 5.1, 0), V(164.5, 10.9, 0)), False)
sketch14.addGeometry(Part.ArcOfCircle(Part.Circle(V(163.9, 10.9, 0), V(0, 0, 1), 0.6), math.radians(0), math.radians(90)), False)
sketch14.addGeometry(Part.LineSegment(V(163.9, 11.5, 0), V(158.1, 11.5, 0)), False)
sketch14.addGeometry(Part.ArcOfCircle(Part.Circle(V(158.1, 10.9, 0), V(0, 0, 1), 0.6), math.radians(90), math.radians(180)), False)
sketch14.addGeometry(Part.LineSegment(V(157.5, 10.9, 0), V(157.5, 5.1, 0)), False)
sketch14.addGeometry(Part.ArcOfCircle(Part.Circle(V(158.1, 5.1, 0), V(0, 0, 1), 0.6), math.radians(180), math.radians(270)), False)
sketch14.addConstraint(Sketcher.Constraint("Tangent", 0, 2, 1, 1))
sketch14.addConstraint(Sketcher.Constraint("Tangent", 1, 2, 2, 1))
sketch14.addConstraint(Sketcher.Constraint("Tangent", 2, 2, 3, 1))
sketch14.addConstraint(Sketcher.Constraint("Tangent", 3, 2, 4, 1))
sketch14.addConstraint(Sketcher.Constraint("Tangent", 4, 2, 5, 1))
sketch14.addConstraint(Sketcher.Constraint("Tangent", 5, 2, 6, 1))
sketch14.addConstraint(Sketcher.Constraint("Tangent", 6, 2, 7, 1))
sketch14.addConstraint(Sketcher.Constraint("Tangent", 7, 2, 0, 1))
sketch14.addConstraint(Sketcher.Constraint("Horizontal", 0))
sketch14.addConstraint(Sketcher.Constraint("Vertical", 2))
sketch14.addConstraint(Sketcher.Constraint("Horizontal", 4))
sketch14.addConstraint(Sketcher.Constraint("Vertical", 6))
sketch14.addConstraint(Sketcher.Constraint("Equal", 1, 3))
sketch14.addConstraint(Sketcher.Constraint("Equal", 3, 5))
sketch14.addConstraint(Sketcher.Constraint("Equal", 5, 7))
sketch14.addConstraint(Sketcher.Constraint("Equal", 4, 2))
sketch14.addConstraint(Sketcher.Constraint("Radius", 1, 0.6))
sketch14.addConstraint(Sketcher.Constraint("DistanceX", 0, 1, 0, 2, 5.8))
sketch14.addConstraint(Sketcher.Constraint("DistanceX", -1, 1, 1, 3, 163.9))
sketch14.addConstraint(Sketcher.Constraint("DistanceY", -1, 1, 1, 3, 5.1))
pocket13 = body.newObject("PartDesign::Pocket", "Pocket012")
pocket13.Profile = sketch14
pocket13.Length = 0.35

# Sketch on XY plane
sketch15 = body.newObject("Sketcher::SketchObject", "Sketch014")
sketch15.AttachmentSupport = (doc.getObject("XY_Plane"), [""])
sketch15.MapMode = "FlatFace"
sketch15.AttachmentOffset = App.Placement(V(0, 0, 14.9), App.Rotation())
sketch15.addGeometry(Part.LineSegment(V(63.5, 4.5, 0), V(69.3, 4.5, 0)), False)
sketch15.addGeometry(Part.ArcOfCircle(Part.Circle(V(69.3, 5.1, 0), V(0, 0, 1), 0.6), math.radians(-90), math.radians(0)), False)
sketch15.addGeometry(Part.LineSegment(V(69.9, 5.1, 0), V(69.9, 10.9, 0)), False)
sketch15.addGeometry(Part.ArcOfCircle(Part.Circle(V(69.3, 10.9, 0), V(0, 0, 1), 0.6), math.radians(0), math.radians(90)), False)
sketch15.addGeometry(Part.LineSegment(V(69.3, 11.5, 0), V(63.5, 11.5, 0)), False)
sketch15.addGeometry(Part.ArcOfCircle(Part.Circle(V(63.5, 10.9, 0), V(0, 0, 1), 0.6), math.radians(90), math.radians(180)), False)
sketch15.addGeometry(Part.LineSegment(V(62.9, 10.9, 0), V(62.9, 5.1, 0)), False)
sketch15.addGeometry(Part.ArcOfCircle(Part.Circle(V(63.5, 5.1, 0), V(0, 0, 1), 0.6), math.radians(180), math.radians(270)), False)
sketch15.addConstraint(Sketcher.Constraint("Tangent", 0, 2, 1, 1))
sketch15.addConstraint(Sketcher.Constraint("Tangent", 1, 2, 2, 1))
sketch15.addConstraint(Sketcher.Constraint("Tangent", 2, 2, 3, 1))
sketch15.addConstraint(Sketcher.Constraint("Tangent", 3, 2, 4, 1))
sketch15.addConstraint(Sketcher.Constraint("Tangent", 4, 2, 5, 1))
sketch15.addConstraint(Sketcher.Constraint("Tangent", 5, 2, 6, 1))
sketch15.addConstraint(Sketcher.Constraint("Tangent", 6, 2, 7, 1))
sketch15.addConstraint(Sketcher.Constraint("Tangent", 7, 2, 0, 1))
sketch15.addConstraint(Sketcher.Constraint("Horizontal", 0))
sketch15.addConstraint(Sketcher.Constraint("Vertical", 2))
sketch15.addConstraint(Sketcher.Constraint("Horizontal", 4))
sketch15.addConstraint(Sketcher.Constraint("Vertical", 6))
sketch15.addConstraint(Sketcher.Constraint("Equal", 1, 3))
sketch15.addConstraint(Sketcher.Constraint("Equal", 3, 5))
sketch15.addConstraint(Sketcher.Constraint("Equal", 5, 7))
sketch15.addConstraint(Sketcher.Constraint("Equal", 4, 2))
sketch15.addConstraint(Sketcher.Constraint("Radius", 1, 0.6))
sketch15.addConstraint(Sketcher.Constraint("DistanceX", 0, 1, 0, 2, 5.8))
sketch15.addConstraint(Sketcher.Constraint("DistanceX", -1, 1, 1, 3, 69.3))
sketch15.addConstraint(Sketcher.Constraint("DistanceY", -1, 1, 1, 3, 5.1))
pocket14 = body.newObject("PartDesign::Pocket", "Pocket013")
pocket14.Profile = sketch15
pocket14.Length = 0.35

doc.recompute()
